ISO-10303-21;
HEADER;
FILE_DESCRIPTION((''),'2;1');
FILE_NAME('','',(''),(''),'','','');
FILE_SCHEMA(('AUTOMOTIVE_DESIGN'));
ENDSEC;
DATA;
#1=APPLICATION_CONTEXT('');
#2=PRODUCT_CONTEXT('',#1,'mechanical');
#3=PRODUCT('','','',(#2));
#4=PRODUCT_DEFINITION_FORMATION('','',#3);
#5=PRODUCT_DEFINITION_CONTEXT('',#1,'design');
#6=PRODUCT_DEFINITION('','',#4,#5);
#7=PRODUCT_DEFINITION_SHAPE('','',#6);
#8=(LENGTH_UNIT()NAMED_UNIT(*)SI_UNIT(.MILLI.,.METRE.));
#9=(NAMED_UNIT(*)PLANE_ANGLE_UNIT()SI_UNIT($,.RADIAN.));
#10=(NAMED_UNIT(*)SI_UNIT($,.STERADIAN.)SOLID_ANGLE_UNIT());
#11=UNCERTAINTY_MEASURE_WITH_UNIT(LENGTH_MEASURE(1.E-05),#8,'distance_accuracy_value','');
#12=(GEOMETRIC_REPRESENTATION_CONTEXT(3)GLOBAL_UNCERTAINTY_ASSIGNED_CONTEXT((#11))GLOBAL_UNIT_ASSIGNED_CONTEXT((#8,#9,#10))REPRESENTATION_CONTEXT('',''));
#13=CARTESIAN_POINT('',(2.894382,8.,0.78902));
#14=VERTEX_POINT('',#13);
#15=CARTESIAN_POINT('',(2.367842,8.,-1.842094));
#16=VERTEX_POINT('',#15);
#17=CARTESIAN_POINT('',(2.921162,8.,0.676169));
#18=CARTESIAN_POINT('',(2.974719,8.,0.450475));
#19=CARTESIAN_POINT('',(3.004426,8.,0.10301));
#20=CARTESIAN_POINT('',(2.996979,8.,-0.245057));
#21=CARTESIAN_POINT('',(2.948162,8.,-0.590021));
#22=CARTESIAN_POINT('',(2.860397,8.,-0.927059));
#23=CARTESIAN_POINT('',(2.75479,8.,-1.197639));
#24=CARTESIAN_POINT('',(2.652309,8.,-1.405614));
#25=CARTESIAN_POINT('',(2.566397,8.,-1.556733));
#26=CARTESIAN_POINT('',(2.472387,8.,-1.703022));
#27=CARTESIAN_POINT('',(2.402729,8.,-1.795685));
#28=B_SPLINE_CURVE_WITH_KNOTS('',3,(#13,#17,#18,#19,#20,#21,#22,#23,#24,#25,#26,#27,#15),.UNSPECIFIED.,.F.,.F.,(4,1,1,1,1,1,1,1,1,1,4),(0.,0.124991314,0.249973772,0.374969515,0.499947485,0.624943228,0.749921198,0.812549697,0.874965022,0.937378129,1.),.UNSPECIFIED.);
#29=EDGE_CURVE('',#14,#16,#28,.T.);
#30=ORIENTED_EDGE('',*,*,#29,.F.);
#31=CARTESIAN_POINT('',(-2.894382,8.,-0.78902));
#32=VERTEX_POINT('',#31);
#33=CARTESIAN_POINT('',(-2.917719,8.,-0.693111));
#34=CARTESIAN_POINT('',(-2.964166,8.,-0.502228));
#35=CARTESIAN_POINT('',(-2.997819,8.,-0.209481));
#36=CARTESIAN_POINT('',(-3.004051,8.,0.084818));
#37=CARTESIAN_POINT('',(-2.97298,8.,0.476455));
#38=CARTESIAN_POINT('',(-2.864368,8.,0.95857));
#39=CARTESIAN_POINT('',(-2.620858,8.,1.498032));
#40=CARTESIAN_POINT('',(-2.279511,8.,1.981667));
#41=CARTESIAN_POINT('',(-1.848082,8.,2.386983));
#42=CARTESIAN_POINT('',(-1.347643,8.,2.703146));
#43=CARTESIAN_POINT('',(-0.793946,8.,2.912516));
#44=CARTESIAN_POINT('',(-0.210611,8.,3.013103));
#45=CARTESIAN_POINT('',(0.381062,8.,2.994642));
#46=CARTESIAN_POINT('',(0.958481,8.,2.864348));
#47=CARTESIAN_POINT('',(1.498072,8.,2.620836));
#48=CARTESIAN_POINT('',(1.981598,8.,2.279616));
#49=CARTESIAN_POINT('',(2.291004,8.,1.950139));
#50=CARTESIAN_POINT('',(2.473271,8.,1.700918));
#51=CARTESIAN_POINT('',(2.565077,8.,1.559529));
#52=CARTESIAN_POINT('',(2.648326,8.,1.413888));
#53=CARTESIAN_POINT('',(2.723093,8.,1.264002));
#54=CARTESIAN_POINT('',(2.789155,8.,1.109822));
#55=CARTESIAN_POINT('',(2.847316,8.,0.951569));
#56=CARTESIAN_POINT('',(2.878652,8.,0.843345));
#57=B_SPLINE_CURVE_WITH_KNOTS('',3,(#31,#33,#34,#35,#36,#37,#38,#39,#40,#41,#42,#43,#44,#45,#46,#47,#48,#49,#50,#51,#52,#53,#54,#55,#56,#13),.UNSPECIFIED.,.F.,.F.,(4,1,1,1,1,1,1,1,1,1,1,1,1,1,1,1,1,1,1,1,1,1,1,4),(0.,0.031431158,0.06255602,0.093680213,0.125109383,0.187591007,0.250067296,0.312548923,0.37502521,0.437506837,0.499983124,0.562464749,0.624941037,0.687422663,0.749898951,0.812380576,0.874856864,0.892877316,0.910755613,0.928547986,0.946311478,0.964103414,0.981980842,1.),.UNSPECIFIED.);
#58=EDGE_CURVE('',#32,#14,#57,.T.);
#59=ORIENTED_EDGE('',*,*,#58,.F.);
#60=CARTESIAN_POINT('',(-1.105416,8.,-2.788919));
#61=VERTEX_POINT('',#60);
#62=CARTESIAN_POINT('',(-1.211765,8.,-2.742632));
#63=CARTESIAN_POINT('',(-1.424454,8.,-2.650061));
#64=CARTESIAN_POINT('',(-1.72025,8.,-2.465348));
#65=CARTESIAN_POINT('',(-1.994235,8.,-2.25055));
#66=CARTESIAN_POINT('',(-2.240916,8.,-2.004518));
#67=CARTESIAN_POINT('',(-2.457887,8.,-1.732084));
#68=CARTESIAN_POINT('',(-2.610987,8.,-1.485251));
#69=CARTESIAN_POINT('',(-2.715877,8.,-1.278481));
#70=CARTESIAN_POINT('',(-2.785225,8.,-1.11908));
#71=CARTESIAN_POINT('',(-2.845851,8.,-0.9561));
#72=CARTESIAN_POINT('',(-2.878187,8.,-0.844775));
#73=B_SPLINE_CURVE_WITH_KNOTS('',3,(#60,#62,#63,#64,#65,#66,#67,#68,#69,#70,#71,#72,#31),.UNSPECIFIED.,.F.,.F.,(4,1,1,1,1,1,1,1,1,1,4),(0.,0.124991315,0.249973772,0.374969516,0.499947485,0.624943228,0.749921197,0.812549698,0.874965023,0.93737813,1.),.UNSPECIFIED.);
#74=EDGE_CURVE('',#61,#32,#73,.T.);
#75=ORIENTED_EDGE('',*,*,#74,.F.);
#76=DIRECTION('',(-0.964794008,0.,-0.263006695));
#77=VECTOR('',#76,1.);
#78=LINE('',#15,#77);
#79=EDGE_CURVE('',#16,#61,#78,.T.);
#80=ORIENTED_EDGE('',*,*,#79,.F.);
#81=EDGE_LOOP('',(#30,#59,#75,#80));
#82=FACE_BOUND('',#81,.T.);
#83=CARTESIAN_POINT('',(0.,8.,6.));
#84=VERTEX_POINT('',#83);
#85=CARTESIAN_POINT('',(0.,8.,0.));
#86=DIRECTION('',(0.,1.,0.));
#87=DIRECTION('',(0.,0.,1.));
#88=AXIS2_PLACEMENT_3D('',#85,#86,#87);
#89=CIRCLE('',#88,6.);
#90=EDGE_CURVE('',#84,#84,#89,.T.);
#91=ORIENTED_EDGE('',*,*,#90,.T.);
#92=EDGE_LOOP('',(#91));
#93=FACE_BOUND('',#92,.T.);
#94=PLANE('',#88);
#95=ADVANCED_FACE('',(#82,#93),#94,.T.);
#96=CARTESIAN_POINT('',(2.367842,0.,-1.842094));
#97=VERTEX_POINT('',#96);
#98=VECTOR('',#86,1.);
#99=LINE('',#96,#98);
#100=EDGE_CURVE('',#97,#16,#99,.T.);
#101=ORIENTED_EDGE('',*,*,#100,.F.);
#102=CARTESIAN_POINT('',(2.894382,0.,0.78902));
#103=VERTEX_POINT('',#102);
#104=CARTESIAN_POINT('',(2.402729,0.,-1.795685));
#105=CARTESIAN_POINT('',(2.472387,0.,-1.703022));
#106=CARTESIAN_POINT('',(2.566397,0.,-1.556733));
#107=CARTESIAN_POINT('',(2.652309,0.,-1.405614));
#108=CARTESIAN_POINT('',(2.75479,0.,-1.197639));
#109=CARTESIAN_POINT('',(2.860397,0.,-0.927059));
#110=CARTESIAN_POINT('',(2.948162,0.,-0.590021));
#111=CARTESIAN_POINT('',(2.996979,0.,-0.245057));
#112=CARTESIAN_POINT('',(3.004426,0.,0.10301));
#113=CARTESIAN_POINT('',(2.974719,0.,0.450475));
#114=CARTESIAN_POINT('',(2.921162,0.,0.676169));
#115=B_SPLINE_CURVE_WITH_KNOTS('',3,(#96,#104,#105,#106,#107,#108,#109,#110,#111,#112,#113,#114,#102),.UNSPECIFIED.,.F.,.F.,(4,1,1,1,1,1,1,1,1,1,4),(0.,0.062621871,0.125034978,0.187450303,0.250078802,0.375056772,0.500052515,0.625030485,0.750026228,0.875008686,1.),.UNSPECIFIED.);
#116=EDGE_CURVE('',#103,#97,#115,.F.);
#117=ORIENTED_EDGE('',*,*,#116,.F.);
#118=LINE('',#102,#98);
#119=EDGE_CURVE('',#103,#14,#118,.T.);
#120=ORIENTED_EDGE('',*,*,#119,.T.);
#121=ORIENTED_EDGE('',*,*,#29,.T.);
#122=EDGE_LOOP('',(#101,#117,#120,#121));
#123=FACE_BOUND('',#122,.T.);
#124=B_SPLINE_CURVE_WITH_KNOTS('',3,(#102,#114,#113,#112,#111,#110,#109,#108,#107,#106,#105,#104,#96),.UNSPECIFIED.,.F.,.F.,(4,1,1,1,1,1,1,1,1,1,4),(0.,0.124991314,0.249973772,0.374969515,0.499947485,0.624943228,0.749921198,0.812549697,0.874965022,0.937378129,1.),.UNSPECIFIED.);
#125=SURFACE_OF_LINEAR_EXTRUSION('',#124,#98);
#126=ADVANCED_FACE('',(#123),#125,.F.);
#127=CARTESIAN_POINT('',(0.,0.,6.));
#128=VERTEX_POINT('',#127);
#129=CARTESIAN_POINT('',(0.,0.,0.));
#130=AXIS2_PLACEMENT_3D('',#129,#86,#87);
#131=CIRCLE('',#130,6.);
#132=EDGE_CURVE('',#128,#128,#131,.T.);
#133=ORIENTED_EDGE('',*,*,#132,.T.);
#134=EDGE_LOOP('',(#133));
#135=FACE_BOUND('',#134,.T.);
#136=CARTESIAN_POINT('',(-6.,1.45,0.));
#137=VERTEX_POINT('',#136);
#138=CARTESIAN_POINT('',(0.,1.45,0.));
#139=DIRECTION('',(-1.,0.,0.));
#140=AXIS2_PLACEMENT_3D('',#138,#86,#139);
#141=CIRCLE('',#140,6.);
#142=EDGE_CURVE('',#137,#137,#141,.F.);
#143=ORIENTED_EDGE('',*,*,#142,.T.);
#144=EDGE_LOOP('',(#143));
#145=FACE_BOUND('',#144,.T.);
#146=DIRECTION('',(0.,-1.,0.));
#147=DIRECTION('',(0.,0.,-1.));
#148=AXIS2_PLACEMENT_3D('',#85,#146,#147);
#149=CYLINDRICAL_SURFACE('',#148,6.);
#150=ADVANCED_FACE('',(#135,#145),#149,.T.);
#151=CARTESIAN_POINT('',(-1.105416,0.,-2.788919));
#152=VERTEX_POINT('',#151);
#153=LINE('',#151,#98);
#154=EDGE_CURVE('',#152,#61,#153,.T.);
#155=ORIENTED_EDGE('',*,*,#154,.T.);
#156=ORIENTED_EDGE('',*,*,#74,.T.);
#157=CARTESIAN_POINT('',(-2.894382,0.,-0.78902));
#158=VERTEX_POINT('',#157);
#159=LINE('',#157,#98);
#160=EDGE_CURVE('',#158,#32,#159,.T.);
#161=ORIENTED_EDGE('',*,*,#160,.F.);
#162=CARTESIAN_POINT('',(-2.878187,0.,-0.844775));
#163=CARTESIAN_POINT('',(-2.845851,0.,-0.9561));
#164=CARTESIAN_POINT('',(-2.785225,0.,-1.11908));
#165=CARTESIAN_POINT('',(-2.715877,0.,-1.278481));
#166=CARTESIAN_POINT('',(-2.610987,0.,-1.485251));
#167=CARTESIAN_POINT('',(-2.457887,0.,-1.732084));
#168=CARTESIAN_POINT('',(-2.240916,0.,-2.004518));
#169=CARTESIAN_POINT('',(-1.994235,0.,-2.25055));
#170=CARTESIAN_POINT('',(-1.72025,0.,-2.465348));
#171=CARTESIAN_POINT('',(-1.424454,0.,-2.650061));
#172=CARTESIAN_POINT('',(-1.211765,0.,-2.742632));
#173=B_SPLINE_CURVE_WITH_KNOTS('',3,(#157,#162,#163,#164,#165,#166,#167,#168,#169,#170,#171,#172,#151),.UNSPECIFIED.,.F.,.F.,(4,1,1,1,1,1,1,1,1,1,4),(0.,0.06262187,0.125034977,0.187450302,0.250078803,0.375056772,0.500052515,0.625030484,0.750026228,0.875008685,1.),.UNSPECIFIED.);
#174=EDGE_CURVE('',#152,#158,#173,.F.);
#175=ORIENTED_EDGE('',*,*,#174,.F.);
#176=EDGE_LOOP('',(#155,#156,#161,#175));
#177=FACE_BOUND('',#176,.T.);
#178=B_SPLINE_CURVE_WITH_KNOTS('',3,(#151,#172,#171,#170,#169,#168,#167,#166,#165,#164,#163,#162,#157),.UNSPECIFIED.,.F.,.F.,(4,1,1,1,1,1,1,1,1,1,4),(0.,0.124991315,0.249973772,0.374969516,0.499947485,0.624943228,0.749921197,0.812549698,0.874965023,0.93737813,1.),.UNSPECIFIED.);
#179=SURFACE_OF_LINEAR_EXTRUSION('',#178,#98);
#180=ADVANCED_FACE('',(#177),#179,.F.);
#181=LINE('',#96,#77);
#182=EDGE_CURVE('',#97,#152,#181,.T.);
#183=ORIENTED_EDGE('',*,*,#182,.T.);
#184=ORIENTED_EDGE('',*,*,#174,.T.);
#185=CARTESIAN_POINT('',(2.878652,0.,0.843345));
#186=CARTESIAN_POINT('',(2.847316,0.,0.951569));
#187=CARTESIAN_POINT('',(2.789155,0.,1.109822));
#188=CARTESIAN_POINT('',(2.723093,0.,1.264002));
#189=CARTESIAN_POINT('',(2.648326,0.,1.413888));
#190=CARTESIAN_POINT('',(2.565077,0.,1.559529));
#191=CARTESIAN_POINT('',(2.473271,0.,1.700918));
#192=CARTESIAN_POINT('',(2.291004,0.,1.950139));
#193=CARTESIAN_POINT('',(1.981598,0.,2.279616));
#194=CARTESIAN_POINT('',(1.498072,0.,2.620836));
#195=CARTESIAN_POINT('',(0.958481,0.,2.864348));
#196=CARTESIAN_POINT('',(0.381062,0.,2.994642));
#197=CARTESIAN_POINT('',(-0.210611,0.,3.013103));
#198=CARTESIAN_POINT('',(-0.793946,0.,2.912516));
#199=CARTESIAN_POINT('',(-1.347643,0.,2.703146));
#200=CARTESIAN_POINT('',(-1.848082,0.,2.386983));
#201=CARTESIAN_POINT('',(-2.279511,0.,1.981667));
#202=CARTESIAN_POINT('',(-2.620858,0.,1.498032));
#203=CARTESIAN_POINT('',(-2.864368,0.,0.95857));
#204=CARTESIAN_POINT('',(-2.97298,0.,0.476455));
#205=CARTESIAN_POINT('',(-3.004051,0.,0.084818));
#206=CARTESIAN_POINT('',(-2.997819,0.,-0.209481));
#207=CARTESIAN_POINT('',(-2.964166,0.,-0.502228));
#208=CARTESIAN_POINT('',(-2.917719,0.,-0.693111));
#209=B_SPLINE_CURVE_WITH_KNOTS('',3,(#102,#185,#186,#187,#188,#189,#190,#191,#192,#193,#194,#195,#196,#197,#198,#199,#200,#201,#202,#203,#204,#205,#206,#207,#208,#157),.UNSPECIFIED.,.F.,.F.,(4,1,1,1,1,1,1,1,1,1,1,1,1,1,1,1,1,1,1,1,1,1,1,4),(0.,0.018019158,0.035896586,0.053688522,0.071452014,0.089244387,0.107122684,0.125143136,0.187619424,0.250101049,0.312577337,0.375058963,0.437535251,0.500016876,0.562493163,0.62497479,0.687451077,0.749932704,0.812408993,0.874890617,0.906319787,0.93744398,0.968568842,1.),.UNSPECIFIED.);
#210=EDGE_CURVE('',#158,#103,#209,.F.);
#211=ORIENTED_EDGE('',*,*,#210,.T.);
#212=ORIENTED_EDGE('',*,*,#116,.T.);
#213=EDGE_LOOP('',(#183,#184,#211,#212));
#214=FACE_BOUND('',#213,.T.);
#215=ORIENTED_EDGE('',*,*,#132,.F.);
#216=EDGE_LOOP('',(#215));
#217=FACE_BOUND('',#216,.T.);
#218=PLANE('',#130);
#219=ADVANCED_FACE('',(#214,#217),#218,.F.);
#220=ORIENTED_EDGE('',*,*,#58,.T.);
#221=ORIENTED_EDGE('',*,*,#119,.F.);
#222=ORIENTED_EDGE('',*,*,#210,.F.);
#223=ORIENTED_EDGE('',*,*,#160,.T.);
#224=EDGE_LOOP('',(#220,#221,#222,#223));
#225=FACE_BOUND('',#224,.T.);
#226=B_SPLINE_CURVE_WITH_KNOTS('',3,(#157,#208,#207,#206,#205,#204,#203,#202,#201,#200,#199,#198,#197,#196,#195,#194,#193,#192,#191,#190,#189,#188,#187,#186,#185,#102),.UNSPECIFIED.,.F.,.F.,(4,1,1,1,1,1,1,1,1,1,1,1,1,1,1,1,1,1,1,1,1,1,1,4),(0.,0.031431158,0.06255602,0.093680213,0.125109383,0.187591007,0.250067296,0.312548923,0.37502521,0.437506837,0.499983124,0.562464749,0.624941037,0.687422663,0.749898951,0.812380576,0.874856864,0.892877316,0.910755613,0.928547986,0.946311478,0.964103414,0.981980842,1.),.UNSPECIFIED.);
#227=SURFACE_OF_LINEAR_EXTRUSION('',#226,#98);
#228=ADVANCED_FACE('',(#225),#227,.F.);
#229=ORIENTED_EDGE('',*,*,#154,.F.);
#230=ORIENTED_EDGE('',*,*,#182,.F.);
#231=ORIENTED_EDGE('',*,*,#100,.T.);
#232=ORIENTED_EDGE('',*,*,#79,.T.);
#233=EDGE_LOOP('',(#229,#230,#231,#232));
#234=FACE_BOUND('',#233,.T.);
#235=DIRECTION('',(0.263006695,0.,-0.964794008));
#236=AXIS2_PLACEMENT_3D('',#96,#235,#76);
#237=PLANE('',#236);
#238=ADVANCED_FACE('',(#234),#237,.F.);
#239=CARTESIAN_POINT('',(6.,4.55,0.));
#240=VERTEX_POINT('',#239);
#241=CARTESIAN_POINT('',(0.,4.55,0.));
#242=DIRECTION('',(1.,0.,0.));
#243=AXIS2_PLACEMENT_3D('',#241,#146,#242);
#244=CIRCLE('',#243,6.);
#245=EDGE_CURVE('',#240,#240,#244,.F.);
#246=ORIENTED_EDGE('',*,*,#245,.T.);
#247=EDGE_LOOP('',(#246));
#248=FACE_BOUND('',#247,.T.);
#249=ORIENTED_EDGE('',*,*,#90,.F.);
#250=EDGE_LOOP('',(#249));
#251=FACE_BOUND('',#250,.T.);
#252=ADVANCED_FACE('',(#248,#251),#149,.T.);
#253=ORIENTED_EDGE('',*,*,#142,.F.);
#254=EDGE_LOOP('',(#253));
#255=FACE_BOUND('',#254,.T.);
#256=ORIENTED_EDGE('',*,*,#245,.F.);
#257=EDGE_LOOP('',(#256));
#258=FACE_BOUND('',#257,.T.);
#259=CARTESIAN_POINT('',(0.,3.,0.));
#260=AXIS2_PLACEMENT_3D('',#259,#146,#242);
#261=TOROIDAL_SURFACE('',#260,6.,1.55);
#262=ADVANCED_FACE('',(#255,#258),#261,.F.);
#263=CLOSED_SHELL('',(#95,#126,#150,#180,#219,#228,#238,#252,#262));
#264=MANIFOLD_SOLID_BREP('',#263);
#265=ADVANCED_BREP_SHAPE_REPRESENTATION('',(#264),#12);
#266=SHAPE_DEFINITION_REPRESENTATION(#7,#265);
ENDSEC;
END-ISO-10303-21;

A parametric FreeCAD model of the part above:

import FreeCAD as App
import Part
import Sketcher

V = App.Vector
Q = App.Units.Quantity

doc = App.newDocument("Part")
body = doc.addObject("PartDesign::Body", "Body")

# Sketch on XZ plane
sketch1 = body.newObject("Sketcher::SketchObject", "Sketch")
sketch1.AttachmentSupport = (doc.getObject("XZ_Plane"), [""])
sketch1.MapMode = "FlatFace"
sketch1.addGeometry(Part.Circle(V(0, 0, 0), V(0, 0, 1), 6), False)
sketch1.addConstraint([
    Sketcher.Constraint("Coincident", 0, 3, -1, 1),
    Sketcher.Constraint("Diameter", 0, Q("12 mm")),
])
pad1 = body.newObject("PartDesign::Pad", "Pad")
pad1.Profile = sketch1
pad1.Length = 8
pad1.Reversed = True

# Sketch on XY plane
sketch2 = body.newObject("Sketcher::SketchObject", "Sketch001")
sketch2.AttachmentSupport = (doc.getObject("XY_Plane"), [""])
sketch2.MapMode = "FlatFace"
sketch2.addGeometry(Part.Circle(V(6, 3, 0), V(0, 0, 1), 1.6), False)
sketch2.addConstraint([
    Sketcher.Constraint("Diameter", 0, Q("3.1 mm")),
    Sketcher.Constraint("DistanceX", -1, 1, 0, 3, Q("6 mm")),
    Sketcher.Constraint("DistanceY", -1, 1, 0, 3, Q("3 mm")),
])
groove = body.newObject("PartDesign::Groove", "Groove")
groove.Profile = sketch2
groove.ReferenceAxis = (sketch2, ["V_Axis"])
groove.Angle = 360

# Sketch on XZ plane
sketch3 = body.newObject("Sketcher::SketchObject", "Sketch002")
sketch3.AttachmentSupport = (doc.getObject("XZ_Plane"), [""])
sketch3.MapMode = "FlatFace"
sketch3.AttachmentOffset = App.Placement(V(0, 0, -8), App.Rotation())
sketch3.addGeometry([
    Part.LineSegment(V(2.367842, -1.842094, 0), V(-1.105416, -2.788919, 0)),
    Part.BSplineCurve([V(-1.105416, -2.788919, 0), V(-1.211765, -2.742632, 0), V(-1.424454, -2.650061, 0), V(-1.72025, -2.465348, 0), V(-1.994235, -2.25055, 0), V(-2.240916, -2.004518, 0), V(-2.457887, -1.732084, 0), V(-2.610987, -1.485251, 0), V(-2.715877, -1.278481, 0), V(-2.785225, -1.11908, 0), V(-2.845851, -0.9561, 0), V(-2.878187, -0.844775, 0), V(-2.894382, -0.78902, 0)], [4, 1, 1, 1, 1, 1, 1, 1, 1, 1, 4], [0, 0.124991315, 0.249973772, 0.374969516, 0.499947485, 0.624943228, 0.749921197, 0.812549698, 0.874965023, 0.93737813, 1], False, 3, [1, 1, 1, 1, 1, 1, 1, 1, 1, 1, 1, 1, 1], False),
    Part.BSplineCurve([V(-2.894382, -0.78902, 0), V(-2.917719, -0.693111, 0), V(-2.964166, -0.502228, 0), V(-2.997819, -0.209481, 0), V(-3.004051, 0.084818, 0), V(-2.97298, 0.476455, 0), V(-2.864368, 0.95857, 0), V(-2.620858, 1.498032, 0), V(-2.279511, 1.981667, 0), V(-1.848082, 2.386983, 0), V(-1.347643, 2.703146, 0), V(-0.793946, 2.912516, 0), V(-0.210611, 3.013103, 0), V(0.381062, 2.994642, 0), V(0.958481, 2.864348, 0), V(1.498072, 2.620836, 0), V(1.981598, 2.279616, 0), V(2.291004, 1.950139, 0), V(2.473271, 1.700918, 0), V(2.565077, 1.559529, 0), V(2.648326, 1.413888, 0), V(2.723093, 1.264002, 0), V(2.789155, 1.109822, 0), V(2.847316, 0.951569, 0), V(2.878652, 0.843345, 0), V(2.894382, 0.78902, 0)], [4, 1, 1, 1, 1, 1, 1, 1, 1, 1, 1, 1, 1, 1, 1, 1, 1, 1, 1, 1, 1, 1, 1, 4], [0, 0.031431158, 0.06255602, 0.093680213, 0.125109383, 0.187591007, 0.250067296, 0.312548923, 0.37502521, 0.437506837, 0.499983124, 0.562464749, 0.624941037, 0.687422663, 0.749898951, 0.812380576, 0.874856864, 0.892877316, 0.910755613, 0.928547986, 0.946311478, 0.964103414, 0.981980842, 1], False, 3, [1, 1, 1, 1, 1, 1, 1, 1, 1, 1, 1, 1, 1, 1, 1, 1, 1, 1, 1, 1, 1, 1, 1, 1, 1, 1], False),
    Part.BSplineCurve([V(2.894382, 0.78902, 0), V(2.921162, 0.676169, 0), V(2.974719, 0.450475, 0), V(3.004426, 0.10301, 0), V(2.996979, -0.245057, 0), V(2.948162, -0.590021, 0), V(2.860397, -0.927059, 0), V(2.75479, -1.197639, 0), V(2.652309, -1.405614, 0), V(2.566397, -1.556733, 0), V(2.472387, -1.703022, 0), V(2.402729, -1.795685, 0), V(2.367842, -1.842094, 0)], [4, 1, 1, 1, 1, 1, 1, 1, 1, 1, 4], [0, 0.124991314, 0.249973772, 0.374969515, 0.499947485, 0.624943228, 0.749921198, 0.812549697, 0.874965022, 0.937378129, 1], False, 3, [1, 1, 1, 1, 1, 1, 1, 1, 1, 1, 1, 1, 1], False),
], False)
sketch3.addConstraint([
    Sketcher.Constraint("Block", 1),
    Sketcher.Constraint("Block", 2),
    Sketcher.Constraint("Block", 3),
    Sketcher.Constraint("Coincident", 0, 2, 1, 1),
    Sketcher.Constraint("Coincident", 3, 2, 0, 1),
])
pocket1 = body.newObject("PartDesign::Pocket", "Pocket")
pocket1.Profile = sketch3
pocket1.Length = 8
pocket1.Reversed = True

doc.recompute()
